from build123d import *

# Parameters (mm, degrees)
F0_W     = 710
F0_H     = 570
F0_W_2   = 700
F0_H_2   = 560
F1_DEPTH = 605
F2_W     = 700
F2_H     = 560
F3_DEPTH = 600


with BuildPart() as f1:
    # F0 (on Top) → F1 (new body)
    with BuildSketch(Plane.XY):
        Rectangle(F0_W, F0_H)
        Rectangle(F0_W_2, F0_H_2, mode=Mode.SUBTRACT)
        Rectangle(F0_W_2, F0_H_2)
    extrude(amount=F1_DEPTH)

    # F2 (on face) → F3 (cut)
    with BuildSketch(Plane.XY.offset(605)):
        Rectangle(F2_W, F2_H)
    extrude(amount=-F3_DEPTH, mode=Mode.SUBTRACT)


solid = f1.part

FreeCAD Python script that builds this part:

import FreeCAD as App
import Part
import Sketcher


def add_polygon(sketch, points):
    """Adds a closed chain of lines whose ends are joined by coincident constraints."""
    first, n = sketch.GeometryCount, len(points)
    for a, b in zip(points, points[1:] + points[:1]):
        sketch.addGeometry(Part.LineSegment(App.Vector(*a, 0), App.Vector(*b, 0)), False)
    for i in range(n):
        sketch.addConstraint(Sketcher.Constraint("Coincident", first + i, 2, first + (i + 1) % n, 1))

doc = App.newDocument("Part")
body = doc.addObject("PartDesign::Body", "Body")

# Sketch on XY plane
sketch1 = doc.addObject("Sketcher::SketchObject", "Sketch")
body.addObject(sketch1)
sketch1.AttachmentSupport = (doc.XY_Plane, [""])
sketch1.MapMode = "FlatFace"
add_polygon(sketch1, [(-355, 285), (-355, -285), (355, -285), (355, 285)])  # lines 0-3
sketch1.addConstraint([
    Sketcher.Constraint("Vertical", 0),
    Sketcher.Constraint("Horizontal", 1),
    Sketcher.Constraint("Vertical", 2),
    Sketcher.Constraint("Horizontal", 3),
    Sketcher.Constraint("Symmetric", 0, 2, 2, 2, -1, 1),
    Sketcher.Constraint("DistanceX", 1, 1, 1, 2, 710.0),
    Sketcher.Constraint("DistanceY", 0, 2, 0, 1, 570.0),
])
pad1 = doc.addObject("PartDesign::Pad", "Pad")
body.addObject(pad1)
pad1.Profile = sketch1
pad1.Length = 605

# Sketch on XY plane
sketch2 = doc.addObject("Sketcher::SketchObject", "Sketch001")
body.addObject(sketch2)
sketch2.AttachmentSupport = (doc.XY_Plane, [""])
sketch2.MapMode = "FlatFace"
sketch2.AttachmentOffset = App.Placement(App.Vector(0, 0, 605), App.Rotation())
add_polygon(sketch2, [(-350, 280), (-350, -280), (350, -280), (350, 280)])  # lines 0-3
sketch2.addConstraint([
    Sketcher.Constraint("Vertical", 0),
    Sketcher.Constraint("Horizontal", 1),
    Sketcher.Constraint("Vertical", 2),
    Sketcher.Constraint("Horizontal", 3),
    Sketcher.Constraint("Symmetric", 0, 2, 2, 2, -1, 1),
    Sketcher.Constraint("DistanceX", 1, 1, 1, 2, 700.0),
    Sketcher.Constraint("DistanceY", 0, 2, 0, 1, 560.0),
])
pocket1 = doc.addObject("PartDesign::Pocket", "Pocket")
body.addObject(pocket1)
pocket1.Profile = sketch2
pocket1.Length = 600

doc.recompute()
